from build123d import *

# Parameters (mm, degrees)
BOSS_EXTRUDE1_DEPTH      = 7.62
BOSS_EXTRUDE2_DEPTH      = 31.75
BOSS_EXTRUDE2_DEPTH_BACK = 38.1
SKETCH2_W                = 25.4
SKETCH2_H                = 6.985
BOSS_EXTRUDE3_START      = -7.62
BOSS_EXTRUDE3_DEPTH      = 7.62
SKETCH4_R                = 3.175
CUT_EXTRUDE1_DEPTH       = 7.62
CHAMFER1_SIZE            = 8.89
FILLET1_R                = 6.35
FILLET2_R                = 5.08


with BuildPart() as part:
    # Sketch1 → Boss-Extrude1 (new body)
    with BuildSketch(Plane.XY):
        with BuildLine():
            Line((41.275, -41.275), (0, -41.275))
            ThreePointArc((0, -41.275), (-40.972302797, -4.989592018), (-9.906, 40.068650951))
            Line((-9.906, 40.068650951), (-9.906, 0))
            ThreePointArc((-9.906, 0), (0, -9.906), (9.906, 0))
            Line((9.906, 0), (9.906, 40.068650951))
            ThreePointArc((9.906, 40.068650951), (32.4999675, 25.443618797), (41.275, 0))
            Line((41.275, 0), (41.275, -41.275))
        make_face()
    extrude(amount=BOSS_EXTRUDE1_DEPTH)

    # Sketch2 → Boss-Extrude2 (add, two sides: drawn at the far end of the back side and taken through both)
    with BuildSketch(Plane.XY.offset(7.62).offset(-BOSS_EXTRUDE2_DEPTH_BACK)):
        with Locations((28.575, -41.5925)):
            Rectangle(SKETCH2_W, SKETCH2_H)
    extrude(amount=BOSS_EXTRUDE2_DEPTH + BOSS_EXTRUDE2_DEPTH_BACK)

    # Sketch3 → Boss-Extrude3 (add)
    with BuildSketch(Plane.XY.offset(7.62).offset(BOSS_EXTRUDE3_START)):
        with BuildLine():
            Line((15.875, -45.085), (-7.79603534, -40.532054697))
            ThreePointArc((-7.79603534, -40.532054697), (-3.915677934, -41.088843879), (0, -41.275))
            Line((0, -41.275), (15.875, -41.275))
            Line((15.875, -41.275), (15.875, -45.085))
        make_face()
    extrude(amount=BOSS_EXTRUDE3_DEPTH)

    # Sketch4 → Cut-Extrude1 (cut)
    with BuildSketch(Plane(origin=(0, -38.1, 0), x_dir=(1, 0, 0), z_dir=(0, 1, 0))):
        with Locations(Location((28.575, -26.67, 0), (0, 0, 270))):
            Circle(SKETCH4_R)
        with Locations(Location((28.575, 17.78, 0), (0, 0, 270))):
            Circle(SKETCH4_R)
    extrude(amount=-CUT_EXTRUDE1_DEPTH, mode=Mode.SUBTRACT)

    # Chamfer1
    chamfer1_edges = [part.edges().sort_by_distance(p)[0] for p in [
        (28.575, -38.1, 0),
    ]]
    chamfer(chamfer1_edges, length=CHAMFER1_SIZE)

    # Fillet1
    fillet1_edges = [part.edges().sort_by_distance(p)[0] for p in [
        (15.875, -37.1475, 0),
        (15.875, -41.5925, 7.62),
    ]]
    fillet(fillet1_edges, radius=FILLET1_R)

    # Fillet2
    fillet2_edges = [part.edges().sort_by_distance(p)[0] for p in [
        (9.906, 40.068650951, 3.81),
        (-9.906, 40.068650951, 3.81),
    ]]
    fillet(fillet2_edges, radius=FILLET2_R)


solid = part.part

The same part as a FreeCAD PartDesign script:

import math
import FreeCAD as App
import Part
import Sketcher

V = App.Vector
Q = App.Units.Quantity


def edges_at(feature, points):
    """Names of the edges that pass closest to the given points."""
    edges = feature.Shape.Edges
    near = lambda p: min(range(len(edges)), key=lambda i: edges[i].distToShape(Part.Vertex(*p))[0])
    return sorted({f"Edge{near(p) + 1}" for p in points})


def add_polygon(sketch, points):
    """Adds a closed chain of lines whose ends are joined by coincident constraints."""
    first, n = sketch.GeometryCount, len(points)
    for a, b in zip(points, points[1:] + points[:1]):
        sketch.addGeometry(Part.LineSegment(App.Vector(*a, 0), App.Vector(*b, 0)), False)
    for i in range(n):
        sketch.addConstraint(Sketcher.Constraint("Coincident", first + i, 2, first + (i + 1) % n, 1))

doc = App.newDocument("Part")
body = doc.addObject("PartDesign::Body", "Body")

sketch1 = doc.addObject("Sketcher::SketchObject", "Sketch")
body.addObject(sketch1)
sketch1.AttachmentSupport = (doc.XY_Plane, [""])
sketch1.MapMode = "FlatFace"
sketch1.addGeometry([
    Part.LineSegment(V(0, -41, 0), V(41, -41, 0)),
    Part.LineSegment(V(41, -41, 0), V(41, 0, 0)),
    Part.ArcOfCircle(Part.Circle(V(0, 0, 0), V(0, 0, 1), 41), math.radians(0), math.radians(76)),
    Part.LineSegment(V(10, 40, 0), V(10, 0, 0)),
    Part.ArcOfCircle(Part.Circle(V(0, 0, 0), V(0, 0, 1), 10), math.radians(180), math.radians(360)),
    Part.LineSegment(V(-10, 0, 0), V(-10, 40, 0)),
    Part.ArcOfCircle(Part.Circle(V(0, 0, 0), V(0, 0, 1), 41), math.radians(104), math.radians(270)),
], False)
sketch1.addConstraint([
    Sketcher.Constraint("Coincident", 0, 2, 1, 1),
    Sketcher.Constraint("Tangent", 1, 2, 2, 1),
    Sketcher.Constraint("Coincident", 2, 2, 3, 1),
    Sketcher.Constraint("Tangent", 3, 2, 4, 2),
    Sketcher.Constraint("Tangent", 4, 1, 5, 1),
    Sketcher.Constraint("Coincident", 5, 2, 6, 1),
    Sketcher.Constraint("Tangent", 6, 2, 0, 1),
    Sketcher.Constraint("Horizontal", 0),
    Sketcher.Constraint("Vertical", 1),
    Sketcher.Constraint("Vertical", 3),
    Sketcher.Constraint("Vertical", 5),
    Sketcher.Constraint("Coincident", 2, 3, -1, 1),
    Sketcher.Constraint("Coincident", 4, 3, -1, 1),
    Sketcher.Constraint("Coincident", 6, 3, -1, 1),
    Sketcher.Constraint("Equal", 2, 6),
    Sketcher.Constraint("Radius", 4, Q("0.39 in")),
    Sketcher.Constraint("Radius", 2, Q("1.625 in")),
])
pad1 = doc.addObject("PartDesign::Pad", "Pad")
body.addObject(pad1)
pad1.Profile = sketch1
pad1.Length = Q("0.3 in")

sketch2 = doc.addObject("Sketcher::SketchObject", "Sketch001")
body.addObject(sketch2)
sketch2.AttachmentSupport = (doc.XY_Plane, [""])
sketch2.MapMode = "FlatFace"
sketch2.AttachmentOffset = App.Placement(V(0, 0, 0.3 * 25.4), App.Rotation())
add_polygon(sketch2, [(16, -38), (16, -45), (41, -45), (41, -38)])
sketch2.addConstraint([
    Sketcher.Constraint("Vertical", 0),
    Sketcher.Constraint("Horizontal", 1),
    Sketcher.Constraint("Vertical", 2),
    Sketcher.Constraint("Horizontal", 3),
    Sketcher.Constraint("DistanceX", 1, 1, 1, 2, Q("1 in")),
    Sketcher.Constraint("DistanceY", 2, 2, -1, 1, Q("1.5 in")),
    Sketcher.Constraint("DistanceY", 0, 2, 0, 1, Q("0.275 in")),
    Sketcher.Constraint("DistanceX", -1, 1, 0, 2, Q("0.625 in")),
])
pad2 = doc.addObject("PartDesign::Pad", "Pad001")
body.addObject(pad2)
pad2.Profile = sketch2
pad2.Type = "TwoLengths"
pad2.Length = Q("1.25 in")
pad2.Length2 = Q("1.5 in")

sketch3 = doc.addObject("Sketcher::SketchObject", "Sketch002")
body.addObject(sketch3)
sketch3.AttachmentSupport = (doc.XY_Plane, [""])
sketch3.MapMode = "FlatFace"
sketch3.addGeometry([
    Part.LineSegment(V(-7.8, -40.5, 0), V(15.9, -45.1, 0)),
    Part.LineSegment(V(15.9, -45.1, 0), V(15.9, -41.3, 0)),
    Part.LineSegment(V(15.9, -41.3, 0), V(0, -41.3, 0)),
    Part.ArcOfCircle(Part.Circle(V(0, 0, 0), V(0, 0, 1), 41.3), math.radians(-100.89), math.radians(-90)),
], False)
sketch3.addConstraint([
    Sketcher.Constraint("Coincident", 0, 2, 1, 1),
    Sketcher.Constraint("Coincident", 1, 2, 2, 1),
    Sketcher.Constraint("Tangent", 2, 2, 3, 2),
    Sketcher.Constraint("Tangent", 3, 1, 0, 1),
    Sketcher.Constraint("Vertical", 1),
    Sketcher.Constraint("Horizontal", 2),
    Sketcher.Constraint("Coincident", 3, 3, -1, 1),
    Sketcher.Constraint("Radius", 3, Q("1.625 in")),
    Sketcher.Constraint("DistanceY", 1, 1, 1, 2, Q("0.15 in")),
    Sketcher.Constraint("DistanceX", 2, 2, 2, 1, Q("0.625 in")),
])
pad3 = doc.addObject("PartDesign::Pad", "Pad002")
body.addObject(pad3)
pad3.Profile = sketch3
pad3.Length = Q("0.3 in")

sketch4 = doc.addObject("Sketcher::SketchObject", "Sketch003")
body.addObject(sketch4)
sketch4.AttachmentSupport = (doc.XZ_Plane, [""])
sketch4.MapMode = "FlatFace"
sketch4.AttachmentOffset = App.Placement(V(0, 0, 1.5 * 25.4), App.Rotation())
sketch4.addGeometry([
    Part.Circle(V(28.6, 26.7, 0), V(0, 0, 1), 3.2),
    Part.Circle(V(28.6, -17.8, 0), V(0, 0, 1), 3.2),
], False)
sketch4.addConstraint([
    Sketcher.Constraint("Equal", 0, 1),
    Sketcher.Constraint("Vertical", 0, 3, 1, 3),
    Sketcher.Constraint("Diameter", 0, Q("0.25 in")),
    Sketcher.Constraint("DistanceY", 1, 3, -1, 1, Q("0.7 in")),
    Sketcher.Constraint("DistanceY", -1, 1, 0, 3, Q("1.05 in")),
    Sketcher.Constraint("DistanceX", -1, 1, 0, 3, Q("1.125 in")),
])
pocket1 = doc.addObject("PartDesign::Pocket", "Pocket")
body.addObject(pocket1)
pocket1.Profile = sketch4
pocket1.Length = Q("0.3 in")
pocket1.Reversed = True
doc.recompute()

chamfer = doc.addObject("PartDesign::Chamfer", "Chamfer")
body.addObject(chamfer)
chamfer.Base = (pocket1, edges_at(pocket1, [(28.575, -38.1, 0)]))
chamfer.Size = Q("0.35 in")
doc.recompute()

fillet = doc.addObject("PartDesign::Fillet", "Fillet")
body.addObject(fillet)
fillet.Base = (chamfer, edges_at(chamfer, [(15.875, -37.148, 0), (15.875, -41.593, 7.62)]))
fillet.Radius = Q("0.25 in")
doc.recompute()

fillet2 = doc.addObject("PartDesign::Fillet", "Fillet001")
body.addObject(fillet2)
fillet2.Base = (fillet, edges_at(fillet, [(9.906, 40.069, 3.81), (-9.906, 40.069, 3.81)]))
fillet2.Radius = Q("0.2 in")

doc.recompute()
